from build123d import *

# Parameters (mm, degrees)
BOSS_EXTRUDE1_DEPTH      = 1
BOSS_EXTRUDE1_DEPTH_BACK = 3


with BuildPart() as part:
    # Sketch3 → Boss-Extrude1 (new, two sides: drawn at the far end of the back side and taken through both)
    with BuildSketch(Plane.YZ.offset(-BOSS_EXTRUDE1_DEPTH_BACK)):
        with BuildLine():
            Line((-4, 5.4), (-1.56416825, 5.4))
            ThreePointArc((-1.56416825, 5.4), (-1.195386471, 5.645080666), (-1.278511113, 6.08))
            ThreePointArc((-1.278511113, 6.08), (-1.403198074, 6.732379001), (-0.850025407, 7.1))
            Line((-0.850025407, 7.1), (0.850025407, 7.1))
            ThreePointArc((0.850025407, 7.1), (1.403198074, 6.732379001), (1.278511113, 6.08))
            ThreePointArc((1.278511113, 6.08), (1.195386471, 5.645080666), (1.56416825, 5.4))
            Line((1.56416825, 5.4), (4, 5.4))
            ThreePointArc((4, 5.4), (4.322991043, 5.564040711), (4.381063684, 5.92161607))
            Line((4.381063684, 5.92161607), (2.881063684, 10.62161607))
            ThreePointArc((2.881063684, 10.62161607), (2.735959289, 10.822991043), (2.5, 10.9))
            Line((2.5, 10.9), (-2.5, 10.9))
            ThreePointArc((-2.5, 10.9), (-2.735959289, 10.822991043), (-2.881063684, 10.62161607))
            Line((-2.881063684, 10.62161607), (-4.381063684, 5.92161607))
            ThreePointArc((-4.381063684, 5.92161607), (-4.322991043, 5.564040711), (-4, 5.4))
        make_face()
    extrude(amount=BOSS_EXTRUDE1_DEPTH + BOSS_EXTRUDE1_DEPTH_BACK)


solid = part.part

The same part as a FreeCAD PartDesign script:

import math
import FreeCAD as App
import Part
import Sketcher

V = App.Vector

doc = App.newDocument("Part")
body = doc.addObject("PartDesign::Body", "Body")

# Sketch on YZ plane
sketch1 = body.newObject("Sketcher::SketchObject", "Sketch")
sketch1.AttachmentSupport = (doc.getObject("YZ_Plane"), [""])
sketch1.MapMode = "FlatFace"
sketch1.addGeometry([
    Part.LineSegment(V(-4, 5.4, 0), V(-1.56, 5.4, 0)),  # 0
    Part.ArcOfCircle(Part.Circle(V(-1.56, 5.8, 0), V(0, 0, 1), 0.4), math.radians(-90), math.radians(44)),  # 1
    Part.ArcOfCircle(Part.Circle(V(-0.85, 6.5, 0), V(0, 0, 1), 0.6), math.radians(90), math.radians(224)),  # 2
    Part.LineSegment(V(-0.85, 7.1, 0), V(0.85, 7.1, 0)),  # 3
    Part.ArcOfCircle(Part.Circle(V(0.85, 6.5, 0), V(0, 0, 1), 0.6), math.radians(-44), math.radians(90)),  # 4
    Part.ArcOfCircle(Part.Circle(V(1.56, 5.8, 0), V(0, 0, 1), 0.4), math.radians(136), math.radians(270)),  # 5
    Part.LineSegment(V(1.56, 5.4, 0), V(4, 5.4, 0)),  # 6
    Part.ArcOfCircle(Part.Circle(V(4, 5.8, 0), V(0, 0, 1), 0.4), math.radians(-90), math.radians(18)),  # 7
    Part.LineSegment(V(4.38, 5.92, 0), V(2.88, 10.62, 0)),  # 8
    Part.ArcOfCircle(Part.Circle(V(2.5, 10.5, 0), V(0, 0, 1), 0.4), math.radians(18), math.radians(90)),  # 9
    Part.LineSegment(V(2.5, 10.9, 0), V(-2.5, 10.9, 0)),  # 10
    Part.ArcOfCircle(Part.Circle(V(-2.5, 10.5, 0), V(0, 0, 1), 0.4), math.radians(90), math.radians(162)),  # 11
    Part.LineSegment(V(-2.88, 10.62, 0), V(-4.38, 5.92, 0)),  # 12
    Part.ArcOfCircle(Part.Circle(V(-4, 5.8, 0), V(0, 0, 1), 0.4), math.radians(162), math.radians(270)),  # 13
], False)
sketch1.addConstraint([
    Sketcher.Constraint("Tangent", 0, 2, 1, 1),
    Sketcher.Constraint("Tangent", 1, 2, 2, 2),
    Sketcher.Constraint("Tangent", 2, 1, 3, 1),
    Sketcher.Constraint("Tangent", 3, 2, 4, 2),
    Sketcher.Constraint("Tangent", 4, 1, 5, 1),
    Sketcher.Constraint("Tangent", 5, 2, 6, 1),
    Sketcher.Constraint("Tangent", 6, 2, 7, 1),
    Sketcher.Constraint("Tangent", 7, 2, 8, 1),
    Sketcher.Constraint("Tangent", 8, 2, 9, 1),
    Sketcher.Constraint("Tangent", 9, 2, 10, 1),
    Sketcher.Constraint("Tangent", 10, 2, 11, 1),
    Sketcher.Constraint("Tangent", 11, 2, 12, 1),
    Sketcher.Constraint("Tangent", 12, 2, 13, 1),
    Sketcher.Constraint("Tangent", 13, 2, 0, 1),
    Sketcher.Constraint("Horizontal", 0),
    Sketcher.Constraint("Horizontal", 3),
    Sketcher.Constraint("Horizontal", 6),
    Sketcher.Constraint("Horizontal", 10),
    Sketcher.Constraint("Equal", 2, 4),
    Sketcher.Constraint("Equal", 1, 5),
    Sketcher.Constraint("Equal", 5, 7),
    Sketcher.Constraint("Equal", 7, 9),
    Sketcher.Constraint("Equal", 9, 11),
    Sketcher.Constraint("Equal", 11, 13),
    Sketcher.Constraint("Symmetric", 1, 3, 5, 3, -2),
    Sketcher.Constraint("Symmetric", 8, 2, 11, 2, -2),
    Sketcher.Constraint("Radius", 1, 0.4),
    Sketcher.Constraint("Radius", 2, 0.6),
    Sketcher.Constraint("DistanceX", 10, 2, 10, 1, 5.0),
    Sketcher.Constraint("DistanceX", -1, 1, 7, 3, 4.0),
    Sketcher.Constraint("DistanceY", 4, 3, 9, 3, 4.0),
    Sketcher.Constraint("DistanceY", -1, 1, 1, 3, 5.8),
    Sketcher.Constraint("DistanceY", -1, 1, 2, 3, 6.5),
    Sketcher.Constraint("DistanceX", 0, 1, 0, 2, 2.435832),
])
pad1 = body.newObject("PartDesign::Pad", "Pad")
pad1.Profile = sketch1
pad1.Type = "TwoLengths"
pad1.Length = 1
pad1.Length2 = 3

doc.recompute()
